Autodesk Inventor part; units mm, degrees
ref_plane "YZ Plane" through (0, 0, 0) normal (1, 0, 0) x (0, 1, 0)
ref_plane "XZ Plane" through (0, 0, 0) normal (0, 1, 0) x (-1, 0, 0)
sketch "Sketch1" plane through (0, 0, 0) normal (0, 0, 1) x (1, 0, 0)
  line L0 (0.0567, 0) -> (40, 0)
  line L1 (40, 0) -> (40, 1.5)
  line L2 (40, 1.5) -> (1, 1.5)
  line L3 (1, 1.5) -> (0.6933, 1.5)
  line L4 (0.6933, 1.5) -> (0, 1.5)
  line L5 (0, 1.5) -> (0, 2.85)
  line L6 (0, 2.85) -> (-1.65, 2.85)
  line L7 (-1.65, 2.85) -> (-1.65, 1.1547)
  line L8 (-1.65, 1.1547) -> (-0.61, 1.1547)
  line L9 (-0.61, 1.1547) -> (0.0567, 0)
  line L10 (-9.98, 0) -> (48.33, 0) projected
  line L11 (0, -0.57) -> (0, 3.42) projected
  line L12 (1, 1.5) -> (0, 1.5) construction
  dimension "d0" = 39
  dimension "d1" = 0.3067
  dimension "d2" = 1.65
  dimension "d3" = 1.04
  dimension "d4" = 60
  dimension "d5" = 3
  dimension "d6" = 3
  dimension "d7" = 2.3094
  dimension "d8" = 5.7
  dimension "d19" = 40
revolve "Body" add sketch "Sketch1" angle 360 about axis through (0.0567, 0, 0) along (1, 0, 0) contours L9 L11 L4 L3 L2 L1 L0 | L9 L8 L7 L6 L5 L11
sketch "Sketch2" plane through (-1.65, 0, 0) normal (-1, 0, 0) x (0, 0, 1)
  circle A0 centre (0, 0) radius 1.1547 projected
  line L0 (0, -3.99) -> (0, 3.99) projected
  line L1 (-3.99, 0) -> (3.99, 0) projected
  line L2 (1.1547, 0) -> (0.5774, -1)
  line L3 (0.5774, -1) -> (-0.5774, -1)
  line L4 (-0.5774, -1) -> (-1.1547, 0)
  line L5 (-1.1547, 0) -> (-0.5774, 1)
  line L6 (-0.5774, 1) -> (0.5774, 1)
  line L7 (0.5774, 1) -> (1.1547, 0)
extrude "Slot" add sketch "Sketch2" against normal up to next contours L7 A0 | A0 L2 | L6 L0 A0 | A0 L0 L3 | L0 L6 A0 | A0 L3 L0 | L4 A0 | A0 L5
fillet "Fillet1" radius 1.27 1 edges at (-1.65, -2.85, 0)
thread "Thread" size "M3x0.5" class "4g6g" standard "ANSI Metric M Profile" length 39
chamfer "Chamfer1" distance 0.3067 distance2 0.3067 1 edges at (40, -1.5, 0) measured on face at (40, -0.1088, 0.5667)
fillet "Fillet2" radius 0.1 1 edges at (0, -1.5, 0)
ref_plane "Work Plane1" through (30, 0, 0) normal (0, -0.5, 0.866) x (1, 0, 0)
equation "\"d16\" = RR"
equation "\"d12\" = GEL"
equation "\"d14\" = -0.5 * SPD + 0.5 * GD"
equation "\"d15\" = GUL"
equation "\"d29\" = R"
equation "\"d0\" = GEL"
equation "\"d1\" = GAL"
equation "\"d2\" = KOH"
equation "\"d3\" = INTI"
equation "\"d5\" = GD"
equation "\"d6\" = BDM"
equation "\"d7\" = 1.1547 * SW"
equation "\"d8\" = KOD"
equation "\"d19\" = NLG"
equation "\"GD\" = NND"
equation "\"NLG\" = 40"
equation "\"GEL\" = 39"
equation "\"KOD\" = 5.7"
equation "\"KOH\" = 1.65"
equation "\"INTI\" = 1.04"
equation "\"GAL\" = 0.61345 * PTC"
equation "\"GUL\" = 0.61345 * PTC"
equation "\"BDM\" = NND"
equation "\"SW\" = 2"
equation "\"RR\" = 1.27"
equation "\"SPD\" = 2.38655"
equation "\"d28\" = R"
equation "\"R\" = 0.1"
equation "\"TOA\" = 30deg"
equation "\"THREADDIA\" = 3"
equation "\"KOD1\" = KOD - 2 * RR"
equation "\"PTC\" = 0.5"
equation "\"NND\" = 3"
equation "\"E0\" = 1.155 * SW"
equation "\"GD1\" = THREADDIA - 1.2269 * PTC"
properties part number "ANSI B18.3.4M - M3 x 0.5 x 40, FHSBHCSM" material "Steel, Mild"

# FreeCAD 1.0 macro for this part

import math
import FreeCAD as App
import Part
import Sketcher
Q = App.Units.Quantity


def edges_at(feature, points):
    """Names of the edges that pass closest to the given points."""
    edges = feature.Shape.Edges
    near = lambda p: min(range(len(edges)), key=lambda i: edges[i].distToShape(Part.Vertex(*p))[0])
    return sorted({f"Edge{near(p) + 1}" for p in points})


def add_polygon(sketch, points):
    """Adds a closed chain of lines whose ends are joined by coincident constraints."""
    first, n = sketch.GeometryCount, len(points)
    for a, b in zip(points, points[1:] + points[:1]):
        sketch.addGeometry(Part.LineSegment(App.Vector(*a, 0), App.Vector(*b, 0)), False)
    for i in range(n):
        sketch.addConstraint(Sketcher.Constraint("Coincident", first + i, 2, first + (i + 1) % n, 1))

doc = App.newDocument("Part")
body = doc.addObject("PartDesign::Body", "Body")

# Sketch on XY plane
sketch1 = doc.addObject("Sketcher::SketchObject", "Sketch")
body.addObject(sketch1)
sketch1.AttachmentSupport = (doc.XY_Plane, [""])
sketch1.MapMode = "FlatFace"
add_polygon(sketch1, [(0.1, 0), (40, 0), (40, 1.5), (0, 1.5), (0, 2.9), (-1.6, 2.9), (-1.6, 1.2), (-0.6, 1.2)])  # lines 0-7
sketch1.addConstraint(Sketcher.Constraint("Horizontal", 0))
sketch1.addConstraint(Sketcher.Constraint("Vertical", 1))
sketch1.addConstraint(Sketcher.Constraint("Horizontal", 2))
sketch1.addConstraint(Sketcher.Constraint("Vertical", 3))
sketch1.addConstraint(Sketcher.Constraint("Horizontal", 4))
sketch1.addConstraint(Sketcher.Constraint("Vertical", 5))
sketch1.addConstraint(Sketcher.Constraint("Horizontal", 6))
sketch1.addConstraint(Sketcher.Constraint("PointOnObject", 0, 2, -1))
sketch1.addConstraint(Sketcher.Constraint("PointOnObject", 2, 2, -2))
sketch1.addConstraint(Sketcher.Constraint("DistanceX", 2, 2, 2, 1, Q("40 mm")))
sketch1.addConstraint(Sketcher.Constraint("DistanceX", 4, 2, 4, 1, Q("1.65 mm")))
sketch1.addConstraint(Sketcher.Constraint("DistanceX", 6, 1, 6, 2, Q("1.04 mm")))
sketch1.addConstraint(Sketcher.Constraint("DistanceY", 1, 1, 1, 2, Q("1.5 mm")))
sketch1.addConstraint(Sketcher.Constraint("DistanceY", 3, 1, 3, 2, Q("1.35 mm")))
sketch1.addConstraint(Sketcher.Constraint("DistanceX", 0, 1, 0, 2, Q("39.9433 mm")))
sketch1.addConstraint(Sketcher.Constraint("DistanceY", 5, 2, 5, 1, Q("1.6953 mm")))
revolution = doc.addObject("PartDesign::Revolution", "Revolution")
body.addObject(revolution)
revolution.Profile = sketch1
revolution.ReferenceAxis = (sketch1, ["H_Axis"])
revolution.Angle = 360

# Sketch on YZ plane
sketch2 = doc.addObject("Sketcher::SketchObject", "Sketch001")
body.addObject(sketch2)
sketch2.AttachmentSupport = (doc.YZ_Plane, [""])
sketch2.MapMode = "FlatFace"
sketch2.AttachmentOffset = App.Placement(App.Vector(0, 0, -1.65), App.Rotation())
sketch2.addGeometry(Part.LineSegment(App.Vector(1, 0.6, 0), App.Vector(0, 1.2, 0)), False)
sketch2.addGeometry(Part.ArcOfCircle(Part.Circle(App.Vector(0, 0, 0), App.Vector(0, 0, 1), 1.2), math.radians(30), math.radians(90)), False)
sketch2.addGeometry(Part.ArcOfCircle(Part.Circle(App.Vector(0, 0, 0), App.Vector(0, 0, 1), 1.2), math.radians(90), math.radians(150)), False)
sketch2.addGeometry(Part.LineSegment(App.Vector(0, 1.2, 0), App.Vector(-1, 0.6, 0)), False)
sketch2.addGeometry(Part.ArcOfCircle(Part.Circle(App.Vector(0, 0, 0), App.Vector(0, 0, 1), 1.2), math.radians(-30), math.radians(30)), False)
sketch2.addGeometry(Part.LineSegment(App.Vector(1, 0.6, 0), App.Vector(1, -0.6, 0)), False)
sketch2.addGeometry(Part.LineSegment(App.Vector(-1, 0.6, 0), App.Vector(-1, -0.6, 0)), False)
sketch2.addGeometry(Part.ArcOfCircle(Part.Circle(App.Vector(0, 0, 0), App.Vector(0, 0, 1), 1.2), math.radians(150), math.radians(210)), False)
sketch2.addGeometry(Part.LineSegment(App.Vector(-1, -0.6, 0), App.Vector(0, -1.2, 0)), False)
sketch2.addGeometry(Part.ArcOfCircle(Part.Circle(App.Vector(0, 0, 0), App.Vector(0, 0, 1), 1.2), math.radians(-150), math.radians(-90)), False)
sketch2.addGeometry(Part.ArcOfCircle(Part.Circle(App.Vector(0, 0, 0), App.Vector(0, 0, 1), 1.2), math.radians(-90), math.radians(-30)), False)
sketch2.addGeometry(Part.LineSegment(App.Vector(0, -1.2, 0), App.Vector(1, -0.6, 0)), False)
sketch2.addConstraint(Sketcher.Constraint("Coincident", 0, 1, 1, 1))
sketch2.addConstraint(Sketcher.Constraint("Coincident", 1, 2, 0, 2))
sketch2.addConstraint(Sketcher.Constraint("Coincident", 2, 1, 3, 1))
sketch2.addConstraint(Sketcher.Constraint("Coincident", 3, 2, 2, 2))
sketch2.addConstraint(Sketcher.Constraint("Coincident", 4, 1, 5, 2))
sketch2.addConstraint(Sketcher.Constraint("Coincident", 5, 1, 4, 2))
sketch2.addConstraint(Sketcher.Constraint("Coincident", 6, 1, 7, 1))
sketch2.addConstraint(Sketcher.Constraint("Coincident", 7, 2, 6, 2))
sketch2.addConstraint(Sketcher.Constraint("Coincident", 8, 1, 9, 1))
sketch2.addConstraint(Sketcher.Constraint("Coincident", 9, 2, 8, 2))
sketch2.addConstraint(Sketcher.Constraint("Coincident", 10, 1, 11, 1))
sketch2.addConstraint(Sketcher.Constraint("Coincident", 11, 2, 10, 2))
sketch2.addConstraint(Sketcher.Constraint("Vertical", 5))
sketch2.addConstraint(Sketcher.Constraint("Vertical", 6))
sketch2.addConstraint(Sketcher.Constraint("Coincident", 1, 3, -1, 1))
sketch2.addConstraint(Sketcher.Constraint("Coincident", 2, 3, -1, 1))
sketch2.addConstraint(Sketcher.Constraint("Coincident", 4, 3, -1, 1))
sketch2.addConstraint(Sketcher.Constraint("Coincident", 7, 3, -1, 1))
sketch2.addConstraint(Sketcher.Constraint("Coincident", 9, 3, -1, 1))
sketch2.addConstraint(Sketcher.Constraint("Coincident", 10, 3, -1, 1))
sketch2.addConstraint(Sketcher.Constraint("Coincident", 2, 1, 1, 2))
sketch2.addConstraint(Sketcher.Constraint("Coincident", 5, 1, 0, 1))
sketch2.addConstraint(Sketcher.Constraint("Coincident", 6, 1, 3, 2))
sketch2.addConstraint(Sketcher.Constraint("Coincident", 8, 1, 7, 2))
sketch2.addConstraint(Sketcher.Constraint("Coincident", 10, 1, 9, 2))
sketch2.addConstraint(Sketcher.Constraint("PointOnObject", 1, 2, -2))
sketch2.addConstraint(Sketcher.Constraint("PointOnObject", 9, 2, -2))
sketch2.addConstraint(Sketcher.Constraint("Parallel", 0, 8))
sketch2.addConstraint(Sketcher.Constraint("Parallel", 3, 11))
sketch2.addConstraint(Sketcher.Constraint("DistanceX", -1, 1, 0, 1, Q("1 mm")))
sketch2.addConstraint(Sketcher.Constraint("Radius", 1, Q("1.1547 mm")))
pad1 = doc.addObject("PartDesign::Pad", "Pad")
body.addObject(pad1)
pad1.Profile = sketch2
pad1.Type = "UpToFirst"
doc.recompute()

fillet = doc.addObject("PartDesign::Fillet", "Fillet")
body.addObject(fillet)
fillet.Base = (pad1, edges_at(pad1, [(-1.65, -2.85, 0)]))
fillet.Radius = 1.27
doc.recompute()

chamfer = doc.addObject("PartDesign::Chamfer", "Chamfer")
body.addObject(chamfer)
chamfer.Base = (fillet, edges_at(fillet, [(40, -1.5, 0)]))
chamfer.ChamferType = "Two distances"
chamfer.Size = 0.3067
chamfer.Size2 = 0.3067
doc.recompute()

fillet2 = doc.addObject("PartDesign::Fillet", "Fillet001")
body.addObject(fillet2)
fillet2.Base = (chamfer, edges_at(chamfer, [(0, -1.5, 0)]))
fillet2.Radius = 0.1

doc.recompute()
